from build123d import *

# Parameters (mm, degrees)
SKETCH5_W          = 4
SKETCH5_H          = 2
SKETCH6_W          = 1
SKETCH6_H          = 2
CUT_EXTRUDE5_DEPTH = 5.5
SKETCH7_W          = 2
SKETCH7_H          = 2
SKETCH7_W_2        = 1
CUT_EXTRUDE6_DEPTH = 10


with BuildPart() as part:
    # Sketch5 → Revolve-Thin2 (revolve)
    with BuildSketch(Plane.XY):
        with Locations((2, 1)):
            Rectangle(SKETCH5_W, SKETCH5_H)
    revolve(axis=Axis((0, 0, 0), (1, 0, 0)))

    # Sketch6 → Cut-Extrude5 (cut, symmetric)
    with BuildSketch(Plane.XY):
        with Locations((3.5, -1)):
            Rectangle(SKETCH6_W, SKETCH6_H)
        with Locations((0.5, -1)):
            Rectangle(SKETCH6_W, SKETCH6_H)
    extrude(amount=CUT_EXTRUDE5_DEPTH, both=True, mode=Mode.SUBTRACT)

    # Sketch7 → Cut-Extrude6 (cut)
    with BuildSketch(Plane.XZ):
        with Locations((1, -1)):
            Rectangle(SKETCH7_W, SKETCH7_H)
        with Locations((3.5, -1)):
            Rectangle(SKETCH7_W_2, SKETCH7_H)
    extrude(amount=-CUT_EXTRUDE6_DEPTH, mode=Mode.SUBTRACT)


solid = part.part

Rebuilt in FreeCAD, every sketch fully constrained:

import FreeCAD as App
import Part
import Sketcher

V = App.Vector

doc = App.newDocument("Part")
body = doc.addObject("PartDesign::Body", "Body")

# Sketch on XY plane
sketch1 = body.newObject("Sketcher::SketchObject", "Sketch")
sketch1.AttachmentSupport = (doc.getObject("XY_Plane"), [""])
sketch1.MapMode = "FlatFace"
sketch1.addGeometry(Part.LineSegment(V(0, 2, 0), V(0, 0, 0)), False)
sketch1.addGeometry(Part.LineSegment(V(0, 0, 0), V(4, 0, 0)), False)
sketch1.addGeometry(Part.LineSegment(V(4, 0, 0), V(4, 2, 0)), False)
sketch1.addGeometry(Part.LineSegment(V(4, 2, 0), V(0, 2, 0)), False)
sketch1.addConstraint(Sketcher.Constraint("Coincident", 0, 2, 1, 1))
sketch1.addConstraint(Sketcher.Constraint("Coincident", 1, 2, 2, 1))
sketch1.addConstraint(Sketcher.Constraint("Coincident", 2, 2, 3, 1))
sketch1.addConstraint(Sketcher.Constraint("Coincident", 3, 2, 0, 1))
sketch1.addConstraint(Sketcher.Constraint("Vertical", 0))
sketch1.addConstraint(Sketcher.Constraint("Horizontal", 1))
sketch1.addConstraint(Sketcher.Constraint("Vertical", 2))
sketch1.addConstraint(Sketcher.Constraint("Horizontal", 3))
sketch1.addConstraint(Sketcher.Constraint("Coincident", 0, 2, -1, 1))
sketch1.addConstraint(Sketcher.Constraint("DistanceX", 1, 1, 1, 2, 4.0))
sketch1.addConstraint(Sketcher.Constraint("DistanceY", 0, 2, 0, 1, 2.0))
revolution = body.newObject("PartDesign::Revolution", "Revolution")
revolution.Profile = sketch1
revolution.ReferenceAxis = (sketch1, ["H_Axis"])
revolution.Angle = 360

# Sketch on XY plane
sketch2 = body.newObject("Sketcher::SketchObject", "Sketch001")
sketch2.AttachmentSupport = (doc.getObject("XY_Plane"), [""])
sketch2.MapMode = "FlatFace"
sketch2.addGeometry(Part.LineSegment(V(3, 0, 0), V(3, -2, 0)), False)
sketch2.addGeometry(Part.LineSegment(V(3, -2, 0), V(4, -2, 0)), False)
sketch2.addGeometry(Part.LineSegment(V(4, -2, 0), V(4, 0, 0)), False)
sketch2.addGeometry(Part.LineSegment(V(4, 0, 0), V(3, 0, 0)), False)
sketch2.addGeometry(Part.LineSegment(V(0, 0, 0), V(0, -2, 0)), False)
sketch2.addGeometry(Part.LineSegment(V(0, -2, 0), V(1, -2, 0)), False)
sketch2.addGeometry(Part.LineSegment(V(1, -2, 0), V(1, 0, 0)), False)
sketch2.addGeometry(Part.LineSegment(V(1, 0, 0), V(0, 0, 0)), False)
sketch2.addConstraint(Sketcher.Constraint("Coincident", 0, 2, 1, 1))
sketch2.addConstraint(Sketcher.Constraint("Coincident", 1, 2, 2, 1))
sketch2.addConstraint(Sketcher.Constraint("Coincident", 2, 2, 3, 1))
sketch2.addConstraint(Sketcher.Constraint("Coincident", 3, 2, 0, 1))
sketch2.addConstraint(Sketcher.Constraint("Coincident", 4, 2, 5, 1))
sketch2.addConstraint(Sketcher.Constraint("Coincident", 5, 2, 6, 1))
sketch2.addConstraint(Sketcher.Constraint("Coincident", 6, 2, 7, 1))
sketch2.addConstraint(Sketcher.Constraint("Coincident", 7, 2, 4, 1))
sketch2.addConstraint(Sketcher.Constraint("Vertical", 0))
sketch2.addConstraint(Sketcher.Constraint("Horizontal", 1))
sketch2.addConstraint(Sketcher.Constraint("Vertical", 2))
sketch2.addConstraint(Sketcher.Constraint("Horizontal", 3))
sketch2.addConstraint(Sketcher.Constraint("Vertical", 4))
sketch2.addConstraint(Sketcher.Constraint("Horizontal", 5))
sketch2.addConstraint(Sketcher.Constraint("Vertical", 6))
sketch2.addConstraint(Sketcher.Constraint("Horizontal", 7))
sketch2.addConstraint(Sketcher.Constraint("Coincident", 7, 2, -1, 1))
sketch2.addConstraint(Sketcher.Constraint("PointOnObject", 2, 2, -1))
sketch2.addConstraint(Sketcher.Constraint("Horizontal", 1, 2, 4, 2))
sketch2.addConstraint(Sketcher.Constraint("Equal", 3, 5))
sketch2.addConstraint(Sketcher.Constraint("DistanceX", 1, 1, 1, 2, 1.0))
sketch2.addConstraint(Sketcher.Constraint("DistanceY", 0, 2, 0, 1, 2.0))
sketch2.addConstraint(Sketcher.Constraint("DistanceX", -1, 1, 0, 2, 3.0))
pocket1 = body.newObject("PartDesign::Pocket", "Pocket")
pocket1.Profile = sketch2
pocket1.Length = 11
pocket1.Midplane = True

# Sketch on XZ plane
sketch3 = body.newObject("Sketcher::SketchObject", "Sketch002")
sketch3.AttachmentSupport = (doc.getObject("XZ_Plane"), [""])
sketch3.MapMode = "FlatFace"
sketch3.addGeometry(Part.LineSegment(V(0, 0, 0), V(0, -2, 0)), False)
sketch3.addGeometry(Part.LineSegment(V(0, -2, 0), V(2, -2, 0)), False)
sketch3.addGeometry(Part.LineSegment(V(2, -2, 0), V(2, 0, 0)), False)
sketch3.addGeometry(Part.LineSegment(V(2, 0, 0), V(0, 0, 0)), False)
sketch3.addGeometry(Part.LineSegment(V(3, 0, 0), V(3, -2, 0)), False)
sketch3.addGeometry(Part.LineSegment(V(3, -2, 0), V(4, -2, 0)), False)
sketch3.addGeometry(Part.LineSegment(V(4, -2, 0), V(4, 0, 0)), False)
sketch3.addGeometry(Part.LineSegment(V(4, 0, 0), V(3, 0, 0)), False)
sketch3.addConstraint(Sketcher.Constraint("Coincident", 0, 2, 1, 1))
sketch3.addConstraint(Sketcher.Constraint("Coincident", 1, 2, 2, 1))
sketch3.addConstraint(Sketcher.Constraint("Coincident", 2, 2, 3, 1))
sketch3.addConstraint(Sketcher.Constraint("Coincident", 3, 2, 0, 1))
sketch3.addConstraint(Sketcher.Constraint("Coincident", 4, 2, 5, 1))
sketch3.addConstraint(Sketcher.Constraint("Coincident", 5, 2, 6, 1))
sketch3.addConstraint(Sketcher.Constraint("Coincident", 6, 2, 7, 1))
sketch3.addConstraint(Sketcher.Constraint("Coincident", 7, 2, 4, 1))
sketch3.addConstraint(Sketcher.Constraint("Vertical", 0))
sketch3.addConstraint(Sketcher.Constraint("Horizontal", 1))
sketch3.addConstraint(Sketcher.Constraint("Vertical", 2))
sketch3.addConstraint(Sketcher.Constraint("Horizontal", 3))
sketch3.addConstraint(Sketcher.Constraint("Vertical", 4))
sketch3.addConstraint(Sketcher.Constraint("Horizontal", 5))
sketch3.addConstraint(Sketcher.Constraint("Vertical", 6))
sketch3.addConstraint(Sketcher.Constraint("Horizontal", 7))
sketch3.addConstraint(Sketcher.Constraint("Coincident", 3, 2, -1, 1))
sketch3.addConstraint(Sketcher.Constraint("PointOnObject", 6, 2, -1))
sketch3.addConstraint(Sketcher.Constraint("Horizontal", 1, 2, 4, 2))
sketch3.addConstraint(Sketcher.Constraint("Equal", 3, 0))
sketch3.addConstraint(Sketcher.Constraint("DistanceX", 1, 1, 1, 2, 2.0))
sketch3.addConstraint(Sketcher.Constraint("DistanceX", 5, 1, 5, 2, 1.0))
sketch3.addConstraint(Sketcher.Constraint("DistanceX", -1, 1, 4, 2, 3.0))
pocket2 = body.newObject("PartDesign::Pocket", "Pocket001")
pocket2.Profile = sketch3
pocket2.Length = 10

doc.recompute()
